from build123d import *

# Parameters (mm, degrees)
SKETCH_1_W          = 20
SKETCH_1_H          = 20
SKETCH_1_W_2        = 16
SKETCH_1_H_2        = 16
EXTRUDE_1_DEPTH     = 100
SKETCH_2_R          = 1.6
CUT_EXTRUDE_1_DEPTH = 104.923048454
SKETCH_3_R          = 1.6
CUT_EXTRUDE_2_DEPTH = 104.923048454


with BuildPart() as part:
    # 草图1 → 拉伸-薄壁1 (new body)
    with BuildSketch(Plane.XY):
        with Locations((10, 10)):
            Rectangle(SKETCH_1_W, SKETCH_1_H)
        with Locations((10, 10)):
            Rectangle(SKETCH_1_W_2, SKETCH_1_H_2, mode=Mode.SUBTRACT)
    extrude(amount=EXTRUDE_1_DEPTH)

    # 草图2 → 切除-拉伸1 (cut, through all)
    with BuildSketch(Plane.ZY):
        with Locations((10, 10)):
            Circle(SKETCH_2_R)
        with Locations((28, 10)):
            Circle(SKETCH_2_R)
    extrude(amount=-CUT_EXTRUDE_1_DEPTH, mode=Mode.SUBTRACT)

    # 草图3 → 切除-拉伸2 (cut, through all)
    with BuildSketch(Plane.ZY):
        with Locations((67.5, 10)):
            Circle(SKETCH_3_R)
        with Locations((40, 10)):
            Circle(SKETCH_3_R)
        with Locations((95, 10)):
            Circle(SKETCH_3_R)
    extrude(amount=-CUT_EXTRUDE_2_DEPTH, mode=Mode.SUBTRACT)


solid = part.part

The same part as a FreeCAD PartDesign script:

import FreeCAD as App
import Part
import Sketcher
Q = App.Units.Quantity


def add_polygon(sketch, points):
    """Adds a closed chain of lines whose ends are joined by coincident constraints."""
    first, n = sketch.GeometryCount, len(points)
    for a, b in zip(points, points[1:] + points[:1]):
        sketch.addGeometry(Part.LineSegment(App.Vector(*a, 0), App.Vector(*b, 0)), False)
    for i in range(n):
        sketch.addConstraint(Sketcher.Constraint("Coincident", first + i, 2, first + (i + 1) % n, 1))

doc = App.newDocument("Part")
params = doc.addObject("Spreadsheet::Sheet", "Params")
for row, (alias, value) in enumerate([
    ("sketch1_width", "20 mm"),
    ("sketch1_width2", "16 mm"),
    ("pad1_length", "100 mm"),
    ("sketch2_diameter", "3.2 mm"),
    ("sketch3_diameter", "3.2 mm"),
], start=1):
    params.set(f"A{row}", alias)
    params.set(f"B{row}", "=" + value)
    params.setAlias(f"B{row}", alias)

body = doc.addObject("PartDesign::Body", "Body")

sketch1 = body.newObject("Sketcher::SketchObject", "Sketch")
sketch1.AttachmentSupport = (doc.getObject("XY_Plane"), [""])
sketch1.MapMode = "FlatFace"
add_polygon(sketch1, [(0, 20), (0, 0), (20, 0), (20, 20)])
add_polygon(sketch1, [(18, 2), (2, 2), (2, 18), (18, 18)])
sketch1.addConstraint([
    Sketcher.Constraint("Vertical", 0),
    Sketcher.Constraint("Horizontal", 1),
    Sketcher.Constraint("Vertical", 2),
    Sketcher.Constraint("Horizontal", 3),
    Sketcher.Constraint("Horizontal", 4),
    Sketcher.Constraint("Vertical", 5),
    Sketcher.Constraint("Horizontal", 6),
    Sketcher.Constraint("Vertical", 7),
    Sketcher.Constraint("Coincident", 0, 2, -1, 1),
    Sketcher.Constraint("Equal", 3, 0),
    Sketcher.Constraint("Equal", 6, 5),
    Sketcher.Constraint("DistanceX", 1, 1, 1, 2, Q("20 mm")),
    Sketcher.Constraint("DistanceX", 4, 2, 4, 1, Q("16 mm")),
    Sketcher.Constraint("DistanceX", -1, 1, 4, 2, Q("2 mm")),
    Sketcher.Constraint("DistanceY", -1, 1, 4, 2, Q("2 mm")),
])
sketch1.setExpression("Constraints[19]", "Params.sketch1_width")
sketch1.setExpression("Constraints[20]", "Params.sketch1_width2")
pad1 = body.newObject("PartDesign::Pad", "Pad")
pad1.Profile = sketch1
pad1.setExpression("Length", "Params.pad1_length")

sketch2 = body.newObject("Sketcher::SketchObject", "Sketch001")
sketch2.AttachmentSupport = (doc.getObject("YZ_Plane"), [""])
sketch2.MapMode = "FlatFace"
sketch2.addGeometry([
    Part.Circle(App.Vector(10, 10, 0), App.Vector(0, 0, 1), 1.6),
    Part.Circle(App.Vector(10, 28, 0), App.Vector(0, 0, 1), 1.6),
], False)
sketch2.addConstraint([
    Sketcher.Constraint("Equal", 0, 1),
    Sketcher.Constraint("Vertical", 0, 3, 1, 3),
    Sketcher.Constraint("Diameter", 0, Q("3.2 mm")),
    Sketcher.Constraint("DistanceX", -1, 1, 0, 3, Q("10 mm")),
    Sketcher.Constraint("DistanceY", -1, 1, 0, 3, Q("10 mm")),
    Sketcher.Constraint("DistanceY", -1, 1, 1, 3, Q("28 mm")),
])
sketch2.setExpression("Constraints[2]", "Params.sketch2_diameter")
pocket1 = body.newObject("PartDesign::Pocket", "Pocket")
pocket1.Profile = sketch2
pocket1.Type = "ThroughAll"
pocket1.Reversed = True

sketch3 = body.newObject("Sketcher::SketchObject", "Sketch002")
sketch3.AttachmentSupport = (doc.getObject("YZ_Plane"), [""])
sketch3.MapMode = "FlatFace"
sketch3.addGeometry([
    Part.Circle(App.Vector(10, 67.5, 0), App.Vector(0, 0, 1), 1.6),
    Part.Circle(App.Vector(10, 40, 0), App.Vector(0, 0, 1), 1.6),
    Part.Circle(App.Vector(10, 95, 0), App.Vector(0, 0, 1), 1.6),
], False)
sketch3.addConstraint([
    Sketcher.Constraint("Equal", 0, 1),
    Sketcher.Constraint("Equal", 1, 2),
    Sketcher.Constraint("Vertical", 0, 3, 1, 3),
    Sketcher.Constraint("Vertical", 1, 3, 2, 3),
    Sketcher.Constraint("Diameter", 0, Q("3.2 mm")),
    Sketcher.Constraint("DistanceX", -1, 1, 0, 3, Q("10 mm")),
    Sketcher.Constraint("DistanceY", -1, 1, 1, 3, Q("40 mm")),
    Sketcher.Constraint("DistanceY", -1, 1, 2, 3, Q("95 mm")),
    Sketcher.Constraint("DistanceY", -1, 1, 0, 3, Q("67.5 mm")),
])
sketch3.setExpression("Constraints[4]", "Params.sketch3_diameter")
pocket2 = body.newObject("PartDesign::Pocket", "Pocket001")
pocket2.Profile = sketch3
pocket2.Type = "ThroughAll"
pocket2.Reversed = True

doc.recompute()
